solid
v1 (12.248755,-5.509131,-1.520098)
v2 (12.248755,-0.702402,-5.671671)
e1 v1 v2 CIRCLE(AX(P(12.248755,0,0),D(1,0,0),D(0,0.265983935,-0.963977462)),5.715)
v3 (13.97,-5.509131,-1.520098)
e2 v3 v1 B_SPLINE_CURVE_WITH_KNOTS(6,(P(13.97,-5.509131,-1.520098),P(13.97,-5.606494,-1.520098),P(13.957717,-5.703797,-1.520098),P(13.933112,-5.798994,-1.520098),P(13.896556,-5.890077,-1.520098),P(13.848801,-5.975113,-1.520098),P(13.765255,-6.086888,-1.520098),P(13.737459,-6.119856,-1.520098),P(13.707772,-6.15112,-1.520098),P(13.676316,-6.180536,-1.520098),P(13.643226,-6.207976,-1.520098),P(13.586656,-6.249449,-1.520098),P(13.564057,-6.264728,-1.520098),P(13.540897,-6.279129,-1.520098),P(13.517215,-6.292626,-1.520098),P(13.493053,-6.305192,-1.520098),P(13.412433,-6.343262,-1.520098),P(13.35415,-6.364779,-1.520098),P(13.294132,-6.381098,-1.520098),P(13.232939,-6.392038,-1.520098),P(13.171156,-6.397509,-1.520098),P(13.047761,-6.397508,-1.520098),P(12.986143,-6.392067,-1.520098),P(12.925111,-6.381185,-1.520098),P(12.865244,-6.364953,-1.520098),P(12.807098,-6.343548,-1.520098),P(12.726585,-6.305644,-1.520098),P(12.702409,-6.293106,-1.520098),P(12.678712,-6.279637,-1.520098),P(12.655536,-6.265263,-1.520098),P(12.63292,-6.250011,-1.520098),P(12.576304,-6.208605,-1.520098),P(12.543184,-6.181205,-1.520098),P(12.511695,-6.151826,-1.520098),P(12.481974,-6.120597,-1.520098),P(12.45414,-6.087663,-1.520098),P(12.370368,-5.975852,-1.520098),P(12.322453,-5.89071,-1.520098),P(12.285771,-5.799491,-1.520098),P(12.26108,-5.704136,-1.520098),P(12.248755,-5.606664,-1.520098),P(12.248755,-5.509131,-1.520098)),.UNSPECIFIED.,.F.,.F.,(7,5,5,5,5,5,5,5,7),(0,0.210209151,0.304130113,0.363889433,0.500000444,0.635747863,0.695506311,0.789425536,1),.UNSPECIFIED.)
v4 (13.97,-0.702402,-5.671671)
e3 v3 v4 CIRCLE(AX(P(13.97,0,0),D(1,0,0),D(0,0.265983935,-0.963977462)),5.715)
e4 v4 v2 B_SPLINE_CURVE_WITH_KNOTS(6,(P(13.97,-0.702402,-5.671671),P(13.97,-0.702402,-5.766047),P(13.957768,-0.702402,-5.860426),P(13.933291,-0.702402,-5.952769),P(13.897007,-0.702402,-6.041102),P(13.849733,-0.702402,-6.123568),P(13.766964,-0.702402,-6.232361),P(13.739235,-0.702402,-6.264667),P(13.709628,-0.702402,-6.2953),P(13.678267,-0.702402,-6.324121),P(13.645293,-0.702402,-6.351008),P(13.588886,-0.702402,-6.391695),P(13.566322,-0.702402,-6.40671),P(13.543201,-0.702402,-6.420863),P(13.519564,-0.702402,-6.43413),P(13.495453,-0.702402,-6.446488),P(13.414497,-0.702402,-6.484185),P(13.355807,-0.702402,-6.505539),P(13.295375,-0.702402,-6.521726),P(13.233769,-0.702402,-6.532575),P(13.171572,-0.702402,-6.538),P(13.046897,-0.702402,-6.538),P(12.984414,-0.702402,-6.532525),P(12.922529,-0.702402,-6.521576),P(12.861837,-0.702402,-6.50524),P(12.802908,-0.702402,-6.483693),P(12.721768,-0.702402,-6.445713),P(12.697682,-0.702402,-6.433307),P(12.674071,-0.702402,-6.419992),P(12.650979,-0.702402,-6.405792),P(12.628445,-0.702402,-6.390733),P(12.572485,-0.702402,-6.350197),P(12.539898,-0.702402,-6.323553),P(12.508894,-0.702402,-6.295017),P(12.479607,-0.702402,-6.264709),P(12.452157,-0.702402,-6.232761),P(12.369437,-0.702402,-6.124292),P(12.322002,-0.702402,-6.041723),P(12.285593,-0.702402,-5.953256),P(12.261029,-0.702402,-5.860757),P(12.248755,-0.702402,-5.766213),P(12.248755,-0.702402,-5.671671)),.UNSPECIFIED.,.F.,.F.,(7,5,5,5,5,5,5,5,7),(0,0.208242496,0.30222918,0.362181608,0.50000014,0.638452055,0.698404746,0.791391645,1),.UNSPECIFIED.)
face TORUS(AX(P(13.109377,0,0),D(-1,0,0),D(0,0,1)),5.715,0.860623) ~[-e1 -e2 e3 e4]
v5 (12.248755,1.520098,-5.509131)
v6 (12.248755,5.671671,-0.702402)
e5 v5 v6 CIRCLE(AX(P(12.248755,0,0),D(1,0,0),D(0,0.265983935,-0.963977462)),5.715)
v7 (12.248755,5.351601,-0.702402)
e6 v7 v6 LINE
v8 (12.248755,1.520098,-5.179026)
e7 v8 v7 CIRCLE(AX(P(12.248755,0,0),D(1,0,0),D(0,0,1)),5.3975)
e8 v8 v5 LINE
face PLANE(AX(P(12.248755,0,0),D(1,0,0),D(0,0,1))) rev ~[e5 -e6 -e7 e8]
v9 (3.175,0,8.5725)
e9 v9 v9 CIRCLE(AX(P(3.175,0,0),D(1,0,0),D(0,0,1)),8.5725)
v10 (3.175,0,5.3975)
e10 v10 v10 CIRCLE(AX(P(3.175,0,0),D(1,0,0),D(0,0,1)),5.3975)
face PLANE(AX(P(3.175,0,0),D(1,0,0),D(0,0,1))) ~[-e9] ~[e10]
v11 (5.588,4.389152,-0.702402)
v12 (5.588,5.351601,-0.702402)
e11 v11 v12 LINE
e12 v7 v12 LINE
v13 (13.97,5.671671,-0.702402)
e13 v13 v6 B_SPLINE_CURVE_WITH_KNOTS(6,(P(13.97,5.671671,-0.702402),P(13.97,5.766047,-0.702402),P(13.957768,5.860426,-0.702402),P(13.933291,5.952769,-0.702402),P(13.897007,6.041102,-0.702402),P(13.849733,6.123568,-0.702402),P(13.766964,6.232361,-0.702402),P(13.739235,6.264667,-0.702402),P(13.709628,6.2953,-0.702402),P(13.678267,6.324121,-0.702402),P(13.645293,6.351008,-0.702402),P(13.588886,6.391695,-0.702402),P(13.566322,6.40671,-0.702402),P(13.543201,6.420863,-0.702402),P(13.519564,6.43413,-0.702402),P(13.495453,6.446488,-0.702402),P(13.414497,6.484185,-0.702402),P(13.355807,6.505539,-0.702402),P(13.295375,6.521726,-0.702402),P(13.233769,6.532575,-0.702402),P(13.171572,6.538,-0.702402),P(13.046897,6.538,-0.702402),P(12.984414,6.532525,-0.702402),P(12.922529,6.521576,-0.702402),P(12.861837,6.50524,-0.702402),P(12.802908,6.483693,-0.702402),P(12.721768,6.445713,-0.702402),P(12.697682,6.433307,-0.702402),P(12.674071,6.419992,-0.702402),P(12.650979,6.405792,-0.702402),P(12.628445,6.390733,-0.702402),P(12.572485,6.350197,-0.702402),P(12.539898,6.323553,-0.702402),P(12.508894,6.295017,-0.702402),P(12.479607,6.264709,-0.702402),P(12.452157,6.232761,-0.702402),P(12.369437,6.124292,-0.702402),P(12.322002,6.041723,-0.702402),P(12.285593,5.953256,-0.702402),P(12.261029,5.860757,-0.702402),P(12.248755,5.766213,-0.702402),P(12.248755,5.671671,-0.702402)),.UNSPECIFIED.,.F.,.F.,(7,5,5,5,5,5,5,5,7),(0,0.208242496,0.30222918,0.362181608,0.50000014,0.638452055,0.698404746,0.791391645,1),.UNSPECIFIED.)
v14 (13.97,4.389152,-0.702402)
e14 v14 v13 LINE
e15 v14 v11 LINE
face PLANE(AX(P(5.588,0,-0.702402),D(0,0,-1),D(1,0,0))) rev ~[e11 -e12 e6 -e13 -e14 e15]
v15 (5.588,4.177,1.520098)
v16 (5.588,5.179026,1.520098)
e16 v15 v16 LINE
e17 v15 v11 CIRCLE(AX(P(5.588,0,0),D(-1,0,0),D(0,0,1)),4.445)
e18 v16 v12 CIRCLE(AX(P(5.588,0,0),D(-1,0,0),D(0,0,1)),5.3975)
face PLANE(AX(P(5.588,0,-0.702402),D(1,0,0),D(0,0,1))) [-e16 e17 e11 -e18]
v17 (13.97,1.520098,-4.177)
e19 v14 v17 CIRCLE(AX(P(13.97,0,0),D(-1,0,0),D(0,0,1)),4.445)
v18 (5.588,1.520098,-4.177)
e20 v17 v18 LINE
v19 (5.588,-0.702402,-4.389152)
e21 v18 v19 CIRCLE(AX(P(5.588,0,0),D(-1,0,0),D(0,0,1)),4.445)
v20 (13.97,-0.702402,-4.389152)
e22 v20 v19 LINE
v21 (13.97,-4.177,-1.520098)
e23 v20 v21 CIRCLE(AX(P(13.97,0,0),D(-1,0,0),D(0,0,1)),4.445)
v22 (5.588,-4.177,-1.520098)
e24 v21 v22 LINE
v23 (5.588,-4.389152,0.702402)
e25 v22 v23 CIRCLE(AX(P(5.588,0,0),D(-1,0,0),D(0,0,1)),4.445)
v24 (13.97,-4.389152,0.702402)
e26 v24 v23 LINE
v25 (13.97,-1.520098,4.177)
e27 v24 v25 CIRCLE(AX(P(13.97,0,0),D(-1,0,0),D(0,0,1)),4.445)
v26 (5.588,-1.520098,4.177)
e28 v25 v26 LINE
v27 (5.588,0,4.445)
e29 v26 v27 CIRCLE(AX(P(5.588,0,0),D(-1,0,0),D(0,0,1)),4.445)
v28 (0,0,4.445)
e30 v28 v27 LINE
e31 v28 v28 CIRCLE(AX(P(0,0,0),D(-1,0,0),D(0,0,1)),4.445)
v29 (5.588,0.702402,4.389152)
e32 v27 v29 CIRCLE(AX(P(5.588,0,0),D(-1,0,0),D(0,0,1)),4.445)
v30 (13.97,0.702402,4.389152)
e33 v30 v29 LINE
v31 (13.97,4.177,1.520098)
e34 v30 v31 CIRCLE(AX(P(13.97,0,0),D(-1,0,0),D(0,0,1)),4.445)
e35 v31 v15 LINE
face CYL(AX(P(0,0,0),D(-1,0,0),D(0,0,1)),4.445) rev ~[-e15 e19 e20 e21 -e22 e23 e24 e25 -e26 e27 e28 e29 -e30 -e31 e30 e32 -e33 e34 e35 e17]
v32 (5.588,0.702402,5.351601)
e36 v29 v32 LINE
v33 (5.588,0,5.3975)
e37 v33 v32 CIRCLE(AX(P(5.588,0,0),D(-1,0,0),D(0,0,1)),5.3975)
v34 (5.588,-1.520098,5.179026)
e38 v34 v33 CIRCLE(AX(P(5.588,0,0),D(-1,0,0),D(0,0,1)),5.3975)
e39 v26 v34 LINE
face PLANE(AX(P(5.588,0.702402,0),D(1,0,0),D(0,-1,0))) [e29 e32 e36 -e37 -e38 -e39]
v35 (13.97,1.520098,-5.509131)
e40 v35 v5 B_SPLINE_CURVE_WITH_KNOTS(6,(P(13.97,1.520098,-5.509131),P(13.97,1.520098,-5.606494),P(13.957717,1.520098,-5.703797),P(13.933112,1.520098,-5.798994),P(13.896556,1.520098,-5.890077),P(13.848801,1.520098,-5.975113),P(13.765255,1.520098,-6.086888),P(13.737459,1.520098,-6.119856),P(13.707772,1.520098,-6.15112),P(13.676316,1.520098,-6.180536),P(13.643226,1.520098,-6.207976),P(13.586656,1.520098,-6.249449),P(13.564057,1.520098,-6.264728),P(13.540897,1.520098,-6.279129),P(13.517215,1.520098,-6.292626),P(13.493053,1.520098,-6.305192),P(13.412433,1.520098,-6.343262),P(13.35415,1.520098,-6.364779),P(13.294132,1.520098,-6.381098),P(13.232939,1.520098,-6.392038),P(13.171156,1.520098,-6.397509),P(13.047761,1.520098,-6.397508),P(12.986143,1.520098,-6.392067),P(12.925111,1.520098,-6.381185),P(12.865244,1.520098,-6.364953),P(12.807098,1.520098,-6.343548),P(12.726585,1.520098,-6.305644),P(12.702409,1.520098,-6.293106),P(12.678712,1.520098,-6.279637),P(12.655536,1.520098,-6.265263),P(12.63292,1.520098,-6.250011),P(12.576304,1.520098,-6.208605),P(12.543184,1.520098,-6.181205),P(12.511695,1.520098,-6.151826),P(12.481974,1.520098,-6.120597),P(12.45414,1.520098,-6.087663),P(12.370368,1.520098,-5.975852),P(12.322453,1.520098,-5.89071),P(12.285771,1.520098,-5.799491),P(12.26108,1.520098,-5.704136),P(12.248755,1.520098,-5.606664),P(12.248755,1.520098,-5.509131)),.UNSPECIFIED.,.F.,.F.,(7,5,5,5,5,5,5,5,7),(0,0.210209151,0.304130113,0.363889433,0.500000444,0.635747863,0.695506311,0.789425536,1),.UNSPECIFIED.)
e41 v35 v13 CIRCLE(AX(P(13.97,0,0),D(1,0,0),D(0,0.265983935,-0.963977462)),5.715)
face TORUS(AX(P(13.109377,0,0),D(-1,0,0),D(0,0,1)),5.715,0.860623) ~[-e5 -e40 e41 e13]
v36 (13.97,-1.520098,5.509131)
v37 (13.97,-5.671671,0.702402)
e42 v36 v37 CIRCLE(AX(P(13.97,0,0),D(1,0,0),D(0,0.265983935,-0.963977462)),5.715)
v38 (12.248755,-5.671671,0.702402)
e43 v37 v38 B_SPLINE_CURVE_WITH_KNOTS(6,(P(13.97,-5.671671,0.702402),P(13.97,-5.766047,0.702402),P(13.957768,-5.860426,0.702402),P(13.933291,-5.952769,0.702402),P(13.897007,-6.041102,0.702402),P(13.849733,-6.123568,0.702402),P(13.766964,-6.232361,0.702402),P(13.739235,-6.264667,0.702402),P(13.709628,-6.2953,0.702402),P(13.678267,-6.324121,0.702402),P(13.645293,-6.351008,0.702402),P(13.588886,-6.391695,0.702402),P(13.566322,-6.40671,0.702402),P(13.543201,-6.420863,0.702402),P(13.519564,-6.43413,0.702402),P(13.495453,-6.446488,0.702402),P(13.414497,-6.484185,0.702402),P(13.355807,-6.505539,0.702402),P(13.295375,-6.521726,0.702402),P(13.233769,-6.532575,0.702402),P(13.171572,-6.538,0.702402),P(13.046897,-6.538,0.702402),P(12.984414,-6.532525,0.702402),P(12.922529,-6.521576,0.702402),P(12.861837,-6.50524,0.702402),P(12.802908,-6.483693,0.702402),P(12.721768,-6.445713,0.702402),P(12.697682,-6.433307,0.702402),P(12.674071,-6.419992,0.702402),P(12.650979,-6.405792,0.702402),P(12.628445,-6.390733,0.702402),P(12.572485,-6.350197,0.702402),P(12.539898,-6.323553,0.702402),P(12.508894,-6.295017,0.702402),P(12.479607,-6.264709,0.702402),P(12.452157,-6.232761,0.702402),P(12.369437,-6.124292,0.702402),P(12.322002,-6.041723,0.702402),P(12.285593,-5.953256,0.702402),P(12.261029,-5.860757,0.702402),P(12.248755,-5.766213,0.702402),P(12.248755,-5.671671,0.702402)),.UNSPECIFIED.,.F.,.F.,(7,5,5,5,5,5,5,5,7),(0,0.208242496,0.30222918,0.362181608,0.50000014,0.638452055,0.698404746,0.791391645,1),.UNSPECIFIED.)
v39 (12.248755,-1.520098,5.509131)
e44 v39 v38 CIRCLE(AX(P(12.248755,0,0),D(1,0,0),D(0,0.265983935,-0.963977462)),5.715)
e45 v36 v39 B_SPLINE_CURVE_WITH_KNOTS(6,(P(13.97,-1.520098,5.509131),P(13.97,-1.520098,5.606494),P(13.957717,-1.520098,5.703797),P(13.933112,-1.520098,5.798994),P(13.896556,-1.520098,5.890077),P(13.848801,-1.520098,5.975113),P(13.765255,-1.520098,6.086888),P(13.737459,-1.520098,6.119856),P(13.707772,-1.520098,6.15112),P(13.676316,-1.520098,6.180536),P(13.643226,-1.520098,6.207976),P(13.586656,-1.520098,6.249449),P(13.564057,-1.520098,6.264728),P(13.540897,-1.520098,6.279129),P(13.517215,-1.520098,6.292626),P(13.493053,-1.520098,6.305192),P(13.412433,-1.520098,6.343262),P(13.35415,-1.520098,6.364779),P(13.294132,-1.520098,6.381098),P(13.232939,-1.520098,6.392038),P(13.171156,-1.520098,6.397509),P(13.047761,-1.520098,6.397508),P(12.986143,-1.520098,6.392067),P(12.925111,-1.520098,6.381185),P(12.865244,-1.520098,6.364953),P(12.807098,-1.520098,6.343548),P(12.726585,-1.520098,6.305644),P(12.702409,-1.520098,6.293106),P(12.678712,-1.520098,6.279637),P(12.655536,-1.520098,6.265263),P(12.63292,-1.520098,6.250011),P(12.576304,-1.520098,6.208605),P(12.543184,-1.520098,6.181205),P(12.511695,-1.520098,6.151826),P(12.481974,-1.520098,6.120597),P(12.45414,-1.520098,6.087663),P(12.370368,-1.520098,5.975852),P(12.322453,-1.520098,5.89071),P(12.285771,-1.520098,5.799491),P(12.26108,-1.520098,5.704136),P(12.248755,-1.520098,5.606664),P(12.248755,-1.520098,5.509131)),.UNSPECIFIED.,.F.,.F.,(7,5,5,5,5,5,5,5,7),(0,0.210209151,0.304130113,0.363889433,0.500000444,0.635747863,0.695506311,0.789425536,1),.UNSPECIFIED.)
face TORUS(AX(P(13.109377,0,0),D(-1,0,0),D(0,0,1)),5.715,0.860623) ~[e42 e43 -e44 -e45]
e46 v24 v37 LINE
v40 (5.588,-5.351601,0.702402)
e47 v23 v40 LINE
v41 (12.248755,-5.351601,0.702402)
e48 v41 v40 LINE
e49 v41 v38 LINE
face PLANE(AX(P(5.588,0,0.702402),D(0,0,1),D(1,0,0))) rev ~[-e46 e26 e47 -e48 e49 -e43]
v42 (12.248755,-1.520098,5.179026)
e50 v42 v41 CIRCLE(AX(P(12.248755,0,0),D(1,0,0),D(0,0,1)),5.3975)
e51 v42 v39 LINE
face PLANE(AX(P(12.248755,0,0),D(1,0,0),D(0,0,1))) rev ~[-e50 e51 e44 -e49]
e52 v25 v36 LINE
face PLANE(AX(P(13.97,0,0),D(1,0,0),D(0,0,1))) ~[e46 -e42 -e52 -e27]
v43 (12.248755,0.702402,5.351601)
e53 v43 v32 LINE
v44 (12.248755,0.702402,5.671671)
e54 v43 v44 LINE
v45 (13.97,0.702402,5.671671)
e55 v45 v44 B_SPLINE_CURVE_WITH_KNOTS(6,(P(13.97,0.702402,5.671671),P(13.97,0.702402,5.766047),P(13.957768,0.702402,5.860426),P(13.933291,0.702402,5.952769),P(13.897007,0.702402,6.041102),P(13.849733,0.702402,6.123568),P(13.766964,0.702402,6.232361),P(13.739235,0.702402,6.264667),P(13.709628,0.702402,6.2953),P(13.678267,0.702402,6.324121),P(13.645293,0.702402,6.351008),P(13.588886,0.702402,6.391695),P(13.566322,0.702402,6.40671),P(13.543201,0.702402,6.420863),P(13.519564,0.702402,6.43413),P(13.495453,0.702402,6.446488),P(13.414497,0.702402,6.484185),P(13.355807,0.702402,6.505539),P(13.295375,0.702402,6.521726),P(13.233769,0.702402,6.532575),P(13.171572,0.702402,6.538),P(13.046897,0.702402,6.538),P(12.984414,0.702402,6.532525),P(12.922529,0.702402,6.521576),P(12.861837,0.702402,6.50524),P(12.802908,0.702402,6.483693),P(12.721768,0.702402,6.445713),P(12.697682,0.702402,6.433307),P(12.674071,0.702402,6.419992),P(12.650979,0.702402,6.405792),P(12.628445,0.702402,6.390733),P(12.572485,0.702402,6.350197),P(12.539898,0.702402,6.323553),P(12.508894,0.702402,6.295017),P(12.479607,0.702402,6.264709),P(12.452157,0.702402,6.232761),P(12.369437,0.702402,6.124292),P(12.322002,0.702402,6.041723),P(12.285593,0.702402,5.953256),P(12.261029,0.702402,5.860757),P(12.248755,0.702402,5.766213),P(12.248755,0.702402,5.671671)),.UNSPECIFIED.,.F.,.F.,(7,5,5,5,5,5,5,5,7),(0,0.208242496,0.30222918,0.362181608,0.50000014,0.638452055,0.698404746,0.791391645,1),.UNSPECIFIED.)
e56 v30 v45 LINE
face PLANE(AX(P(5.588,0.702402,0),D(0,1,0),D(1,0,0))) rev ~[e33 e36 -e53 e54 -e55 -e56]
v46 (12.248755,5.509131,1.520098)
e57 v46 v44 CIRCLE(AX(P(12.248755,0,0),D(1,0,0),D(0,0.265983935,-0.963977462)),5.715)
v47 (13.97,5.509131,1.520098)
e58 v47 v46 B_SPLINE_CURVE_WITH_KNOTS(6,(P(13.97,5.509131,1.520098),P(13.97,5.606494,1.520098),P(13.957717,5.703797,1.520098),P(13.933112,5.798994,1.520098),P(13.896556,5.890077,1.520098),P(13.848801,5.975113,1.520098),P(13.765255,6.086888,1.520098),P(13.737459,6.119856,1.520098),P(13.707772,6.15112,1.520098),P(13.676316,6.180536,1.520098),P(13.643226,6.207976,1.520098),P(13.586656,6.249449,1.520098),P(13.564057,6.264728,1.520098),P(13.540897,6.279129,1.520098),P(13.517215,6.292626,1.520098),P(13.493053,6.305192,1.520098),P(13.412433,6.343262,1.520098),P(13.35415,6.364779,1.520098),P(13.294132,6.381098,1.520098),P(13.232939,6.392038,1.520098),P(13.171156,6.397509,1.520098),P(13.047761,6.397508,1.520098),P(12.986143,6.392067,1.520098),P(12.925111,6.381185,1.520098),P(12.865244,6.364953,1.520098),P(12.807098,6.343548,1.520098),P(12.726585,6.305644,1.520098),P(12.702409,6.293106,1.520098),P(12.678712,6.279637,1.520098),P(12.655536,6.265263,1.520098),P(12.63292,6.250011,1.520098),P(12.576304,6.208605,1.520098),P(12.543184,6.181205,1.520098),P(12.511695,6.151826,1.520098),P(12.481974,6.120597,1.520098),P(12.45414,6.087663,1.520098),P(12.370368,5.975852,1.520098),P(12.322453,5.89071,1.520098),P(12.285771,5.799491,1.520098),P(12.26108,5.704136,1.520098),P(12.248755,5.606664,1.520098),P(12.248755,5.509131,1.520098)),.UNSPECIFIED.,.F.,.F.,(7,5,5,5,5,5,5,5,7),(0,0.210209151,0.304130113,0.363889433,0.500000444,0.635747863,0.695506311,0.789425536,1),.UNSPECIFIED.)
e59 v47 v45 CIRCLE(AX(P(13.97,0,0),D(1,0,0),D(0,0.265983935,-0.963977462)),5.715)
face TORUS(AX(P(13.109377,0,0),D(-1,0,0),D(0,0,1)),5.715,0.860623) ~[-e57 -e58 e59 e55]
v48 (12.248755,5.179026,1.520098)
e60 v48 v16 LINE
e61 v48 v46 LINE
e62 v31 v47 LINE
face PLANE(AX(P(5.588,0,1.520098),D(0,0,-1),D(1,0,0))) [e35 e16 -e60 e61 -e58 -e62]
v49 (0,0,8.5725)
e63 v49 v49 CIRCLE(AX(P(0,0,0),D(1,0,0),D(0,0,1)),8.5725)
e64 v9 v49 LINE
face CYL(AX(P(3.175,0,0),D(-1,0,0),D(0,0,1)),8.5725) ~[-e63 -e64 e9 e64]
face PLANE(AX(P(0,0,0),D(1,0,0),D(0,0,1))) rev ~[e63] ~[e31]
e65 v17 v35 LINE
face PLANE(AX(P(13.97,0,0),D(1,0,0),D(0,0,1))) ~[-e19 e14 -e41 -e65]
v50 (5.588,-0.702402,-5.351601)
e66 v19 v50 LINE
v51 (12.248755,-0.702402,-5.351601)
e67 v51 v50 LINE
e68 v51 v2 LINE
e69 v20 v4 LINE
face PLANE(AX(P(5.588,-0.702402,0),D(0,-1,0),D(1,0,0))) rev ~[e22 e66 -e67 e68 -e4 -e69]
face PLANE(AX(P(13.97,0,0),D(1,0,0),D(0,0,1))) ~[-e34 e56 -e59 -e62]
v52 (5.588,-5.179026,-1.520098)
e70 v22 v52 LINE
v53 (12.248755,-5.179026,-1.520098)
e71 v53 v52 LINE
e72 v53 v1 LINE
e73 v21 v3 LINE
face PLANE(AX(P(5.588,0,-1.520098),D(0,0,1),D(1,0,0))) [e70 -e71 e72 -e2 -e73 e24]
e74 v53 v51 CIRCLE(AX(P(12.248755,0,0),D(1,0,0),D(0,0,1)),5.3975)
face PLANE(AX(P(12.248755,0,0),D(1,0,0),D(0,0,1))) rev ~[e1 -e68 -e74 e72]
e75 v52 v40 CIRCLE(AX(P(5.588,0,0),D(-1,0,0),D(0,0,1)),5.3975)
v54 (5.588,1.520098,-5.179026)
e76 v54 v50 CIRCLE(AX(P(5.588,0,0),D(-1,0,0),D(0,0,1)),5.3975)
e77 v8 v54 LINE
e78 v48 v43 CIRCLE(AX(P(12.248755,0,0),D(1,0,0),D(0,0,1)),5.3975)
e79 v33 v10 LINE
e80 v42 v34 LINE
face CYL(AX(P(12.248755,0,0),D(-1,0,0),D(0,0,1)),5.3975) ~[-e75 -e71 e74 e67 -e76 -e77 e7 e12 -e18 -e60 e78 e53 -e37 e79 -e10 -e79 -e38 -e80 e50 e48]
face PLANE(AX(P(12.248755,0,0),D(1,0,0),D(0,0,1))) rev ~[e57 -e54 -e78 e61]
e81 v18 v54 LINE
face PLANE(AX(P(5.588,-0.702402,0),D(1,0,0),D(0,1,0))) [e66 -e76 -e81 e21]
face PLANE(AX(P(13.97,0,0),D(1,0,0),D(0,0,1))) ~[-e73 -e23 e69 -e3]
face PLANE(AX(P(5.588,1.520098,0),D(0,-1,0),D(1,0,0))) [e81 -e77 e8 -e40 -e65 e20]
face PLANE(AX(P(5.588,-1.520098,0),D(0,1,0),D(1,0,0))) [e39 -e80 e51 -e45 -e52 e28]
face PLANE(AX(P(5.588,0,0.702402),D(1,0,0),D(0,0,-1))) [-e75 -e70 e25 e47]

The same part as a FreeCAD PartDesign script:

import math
import FreeCAD as App
import Part
import Sketcher
Q = App.Units.Quantity


def add_polygon(sketch, points):
    """Adds a closed chain of lines whose ends are joined by coincident constraints."""
    first, n = sketch.GeometryCount, len(points)
    for a, b in zip(points, points[1:] + points[:1]):
        sketch.addGeometry(Part.LineSegment(App.Vector(*a, 0), App.Vector(*b, 0)), False)
    for i in range(n):
        sketch.addConstraint(Sketcher.Constraint("Coincident", first + i, 2, first + (i + 1) % n, 1))

doc = App.newDocument("Part")
body = doc.addObject("PartDesign::Body", "Body")

# Sketch on XY plane
sketch1 = body.newObject("Sketcher::SketchObject", "Sketch")
sketch1.AttachmentSupport = (doc.getObject("XY_Plane"), [""])
sketch1.MapMode = "FlatFace"
sketch1.addGeometry([
    Part.LineSegment(App.Vector(0, 0, 0), App.Vector(13.97, 0, 0)),  # 0
    Part.LineSegment(App.Vector(13.97, 0, 0), App.Vector(13.97, 5.715, 0)),  # 1
    Part.ArcOfCircle(Part.Circle(App.Vector(13.109377, 5.715, 0), App.Vector(0, 0, 1), 0.860623), math.radians(0), math.radians(180)),  # 2
    Part.LineSegment(App.Vector(12.248755, 5.715, 0), App.Vector(12.248755, 5.3975, 0)),  # 3
    Part.LineSegment(App.Vector(12.248755, 5.3975, 0), App.Vector(3.175, 5.3975, 0)),  # 4
    Part.LineSegment(App.Vector(3.175, 5.3975, 0), App.Vector(3.175, 8.5725, 0)),  # 5
    Part.LineSegment(App.Vector(3.175, 8.5725, 0), App.Vector(0, 8.5725, 0)),  # 6
    Part.LineSegment(App.Vector(0, 8.5725, 0), App.Vector(0, 0, 0)),  # 7
], False)
sketch1.addConstraint([
    Sketcher.Constraint("Coincident", 0, 2, 1, 1),
    Sketcher.Constraint("Tangent", 1, 2, 2, 1),
    Sketcher.Constraint("Tangent", 2, 2, 3, 1),
    Sketcher.Constraint("Coincident", 3, 2, 4, 1),
    Sketcher.Constraint("Coincident", 4, 2, 5, 1),
    Sketcher.Constraint("Coincident", 5, 2, 6, 1),
    Sketcher.Constraint("Coincident", 6, 2, 7, 1),
    Sketcher.Constraint("Coincident", 7, 2, 0, 1),
    Sketcher.Constraint("Horizontal", 0),
    Sketcher.Constraint("Vertical", 1),
    Sketcher.Constraint("Vertical", 3),
    Sketcher.Constraint("Horizontal", 4),
    Sketcher.Constraint("Vertical", 5),
    Sketcher.Constraint("Horizontal", 6),
    Sketcher.Constraint("Vertical", 7),
    Sketcher.Constraint("Coincident", 7, 2, -1, 1),
    Sketcher.Constraint("Equal", 6, 5),
    Sketcher.Constraint("DistanceX", 0, 1, 0, 2, Q("0.55 in")),
    Sketcher.Constraint("DistanceX", 6, 2, 6, 1, Q("0.125 in")),
    Sketcher.Constraint("DistanceY", 1, 1, 1, 2, Q("0.225 in")),
    Sketcher.Constraint("DistanceY", 3, 2, 3, 1, Q("0.0125 in")),
    Sketcher.Constraint("Radius", 2, 0.860623),
])
revolution = body.newObject("PartDesign::Revolution", "Revolution")
revolution.Profile = sketch1
revolution.ReferenceAxis = (sketch1, ["H_Axis"])
revolution.Angle = 360

# Sketch on YZ plane
sketch2 = body.newObject("Sketcher::SketchObject", "Sketch001")
sketch2.AttachmentSupport = (doc.getObject("YZ_Plane"), [""])
sketch2.MapMode = "FlatFace"
sketch2.addGeometry(Part.Circle(App.Vector(0, 0, 0), App.Vector(0, 0, 1), 4.445), False)
sketch2.addConstraint([
    Sketcher.Constraint("Coincident", 0, 3, -1, 1),
    Sketcher.Constraint("Diameter", 0, Q("0.35 in")),
])
pocket1 = body.newObject("PartDesign::Pocket", "Pocket")
pocket1.Profile = sketch2
pocket1.Length = Q("0.71 in")
pocket1.Reversed = True

# Sketch on XY plane
sketch3 = body.newObject("Sketcher::SketchObject", "Sketch002")
sketch3.AttachmentSupport = (doc.getObject("XY_Plane"), [""])
sketch3.MapMode = "FlatFace"
add_polygon(sketch3, [(5.588, 1.520098), (5.588, -0.702402), (13.97, -0.702402), (13.97, 1.520098)])  # lines 0-3
sketch3.addConstraint([
    Sketcher.Constraint("Vertical", 0),
    Sketcher.Constraint("Horizontal", 1),
    Sketcher.Constraint("Vertical", 2),
    Sketcher.Constraint("Horizontal", 3),
    Sketcher.Constraint("DistanceX", 1, 1, 1, 2, Q("0.33 in")),
    Sketcher.Constraint("DistanceX", -1, 1, 0, 2, Q("0.22 in")),
    Sketcher.Constraint("DistanceY", 0, 2, 0, 1, Q("0.0875 in")),
    Sketcher.Constraint("DistanceY", 0, 2, -1, 1, 0.702402),
])
pocket2 = body.newObject("PartDesign::Pocket", "Pocket001")
pocket2.Profile = sketch3
pocket2.Type = "ThroughAll"
doc.recompute()

polarpattern = body.newObject("PartDesign::PolarPattern", "PolarPattern")
polarpattern.Originals = [pocket2]
polarpattern.Axis = (doc.getObject("X_Axis"), [""])
polarpattern.Angle = 360
polarpattern.Occurrences = 4
body.Tip = polarpattern

doc.recompute()
